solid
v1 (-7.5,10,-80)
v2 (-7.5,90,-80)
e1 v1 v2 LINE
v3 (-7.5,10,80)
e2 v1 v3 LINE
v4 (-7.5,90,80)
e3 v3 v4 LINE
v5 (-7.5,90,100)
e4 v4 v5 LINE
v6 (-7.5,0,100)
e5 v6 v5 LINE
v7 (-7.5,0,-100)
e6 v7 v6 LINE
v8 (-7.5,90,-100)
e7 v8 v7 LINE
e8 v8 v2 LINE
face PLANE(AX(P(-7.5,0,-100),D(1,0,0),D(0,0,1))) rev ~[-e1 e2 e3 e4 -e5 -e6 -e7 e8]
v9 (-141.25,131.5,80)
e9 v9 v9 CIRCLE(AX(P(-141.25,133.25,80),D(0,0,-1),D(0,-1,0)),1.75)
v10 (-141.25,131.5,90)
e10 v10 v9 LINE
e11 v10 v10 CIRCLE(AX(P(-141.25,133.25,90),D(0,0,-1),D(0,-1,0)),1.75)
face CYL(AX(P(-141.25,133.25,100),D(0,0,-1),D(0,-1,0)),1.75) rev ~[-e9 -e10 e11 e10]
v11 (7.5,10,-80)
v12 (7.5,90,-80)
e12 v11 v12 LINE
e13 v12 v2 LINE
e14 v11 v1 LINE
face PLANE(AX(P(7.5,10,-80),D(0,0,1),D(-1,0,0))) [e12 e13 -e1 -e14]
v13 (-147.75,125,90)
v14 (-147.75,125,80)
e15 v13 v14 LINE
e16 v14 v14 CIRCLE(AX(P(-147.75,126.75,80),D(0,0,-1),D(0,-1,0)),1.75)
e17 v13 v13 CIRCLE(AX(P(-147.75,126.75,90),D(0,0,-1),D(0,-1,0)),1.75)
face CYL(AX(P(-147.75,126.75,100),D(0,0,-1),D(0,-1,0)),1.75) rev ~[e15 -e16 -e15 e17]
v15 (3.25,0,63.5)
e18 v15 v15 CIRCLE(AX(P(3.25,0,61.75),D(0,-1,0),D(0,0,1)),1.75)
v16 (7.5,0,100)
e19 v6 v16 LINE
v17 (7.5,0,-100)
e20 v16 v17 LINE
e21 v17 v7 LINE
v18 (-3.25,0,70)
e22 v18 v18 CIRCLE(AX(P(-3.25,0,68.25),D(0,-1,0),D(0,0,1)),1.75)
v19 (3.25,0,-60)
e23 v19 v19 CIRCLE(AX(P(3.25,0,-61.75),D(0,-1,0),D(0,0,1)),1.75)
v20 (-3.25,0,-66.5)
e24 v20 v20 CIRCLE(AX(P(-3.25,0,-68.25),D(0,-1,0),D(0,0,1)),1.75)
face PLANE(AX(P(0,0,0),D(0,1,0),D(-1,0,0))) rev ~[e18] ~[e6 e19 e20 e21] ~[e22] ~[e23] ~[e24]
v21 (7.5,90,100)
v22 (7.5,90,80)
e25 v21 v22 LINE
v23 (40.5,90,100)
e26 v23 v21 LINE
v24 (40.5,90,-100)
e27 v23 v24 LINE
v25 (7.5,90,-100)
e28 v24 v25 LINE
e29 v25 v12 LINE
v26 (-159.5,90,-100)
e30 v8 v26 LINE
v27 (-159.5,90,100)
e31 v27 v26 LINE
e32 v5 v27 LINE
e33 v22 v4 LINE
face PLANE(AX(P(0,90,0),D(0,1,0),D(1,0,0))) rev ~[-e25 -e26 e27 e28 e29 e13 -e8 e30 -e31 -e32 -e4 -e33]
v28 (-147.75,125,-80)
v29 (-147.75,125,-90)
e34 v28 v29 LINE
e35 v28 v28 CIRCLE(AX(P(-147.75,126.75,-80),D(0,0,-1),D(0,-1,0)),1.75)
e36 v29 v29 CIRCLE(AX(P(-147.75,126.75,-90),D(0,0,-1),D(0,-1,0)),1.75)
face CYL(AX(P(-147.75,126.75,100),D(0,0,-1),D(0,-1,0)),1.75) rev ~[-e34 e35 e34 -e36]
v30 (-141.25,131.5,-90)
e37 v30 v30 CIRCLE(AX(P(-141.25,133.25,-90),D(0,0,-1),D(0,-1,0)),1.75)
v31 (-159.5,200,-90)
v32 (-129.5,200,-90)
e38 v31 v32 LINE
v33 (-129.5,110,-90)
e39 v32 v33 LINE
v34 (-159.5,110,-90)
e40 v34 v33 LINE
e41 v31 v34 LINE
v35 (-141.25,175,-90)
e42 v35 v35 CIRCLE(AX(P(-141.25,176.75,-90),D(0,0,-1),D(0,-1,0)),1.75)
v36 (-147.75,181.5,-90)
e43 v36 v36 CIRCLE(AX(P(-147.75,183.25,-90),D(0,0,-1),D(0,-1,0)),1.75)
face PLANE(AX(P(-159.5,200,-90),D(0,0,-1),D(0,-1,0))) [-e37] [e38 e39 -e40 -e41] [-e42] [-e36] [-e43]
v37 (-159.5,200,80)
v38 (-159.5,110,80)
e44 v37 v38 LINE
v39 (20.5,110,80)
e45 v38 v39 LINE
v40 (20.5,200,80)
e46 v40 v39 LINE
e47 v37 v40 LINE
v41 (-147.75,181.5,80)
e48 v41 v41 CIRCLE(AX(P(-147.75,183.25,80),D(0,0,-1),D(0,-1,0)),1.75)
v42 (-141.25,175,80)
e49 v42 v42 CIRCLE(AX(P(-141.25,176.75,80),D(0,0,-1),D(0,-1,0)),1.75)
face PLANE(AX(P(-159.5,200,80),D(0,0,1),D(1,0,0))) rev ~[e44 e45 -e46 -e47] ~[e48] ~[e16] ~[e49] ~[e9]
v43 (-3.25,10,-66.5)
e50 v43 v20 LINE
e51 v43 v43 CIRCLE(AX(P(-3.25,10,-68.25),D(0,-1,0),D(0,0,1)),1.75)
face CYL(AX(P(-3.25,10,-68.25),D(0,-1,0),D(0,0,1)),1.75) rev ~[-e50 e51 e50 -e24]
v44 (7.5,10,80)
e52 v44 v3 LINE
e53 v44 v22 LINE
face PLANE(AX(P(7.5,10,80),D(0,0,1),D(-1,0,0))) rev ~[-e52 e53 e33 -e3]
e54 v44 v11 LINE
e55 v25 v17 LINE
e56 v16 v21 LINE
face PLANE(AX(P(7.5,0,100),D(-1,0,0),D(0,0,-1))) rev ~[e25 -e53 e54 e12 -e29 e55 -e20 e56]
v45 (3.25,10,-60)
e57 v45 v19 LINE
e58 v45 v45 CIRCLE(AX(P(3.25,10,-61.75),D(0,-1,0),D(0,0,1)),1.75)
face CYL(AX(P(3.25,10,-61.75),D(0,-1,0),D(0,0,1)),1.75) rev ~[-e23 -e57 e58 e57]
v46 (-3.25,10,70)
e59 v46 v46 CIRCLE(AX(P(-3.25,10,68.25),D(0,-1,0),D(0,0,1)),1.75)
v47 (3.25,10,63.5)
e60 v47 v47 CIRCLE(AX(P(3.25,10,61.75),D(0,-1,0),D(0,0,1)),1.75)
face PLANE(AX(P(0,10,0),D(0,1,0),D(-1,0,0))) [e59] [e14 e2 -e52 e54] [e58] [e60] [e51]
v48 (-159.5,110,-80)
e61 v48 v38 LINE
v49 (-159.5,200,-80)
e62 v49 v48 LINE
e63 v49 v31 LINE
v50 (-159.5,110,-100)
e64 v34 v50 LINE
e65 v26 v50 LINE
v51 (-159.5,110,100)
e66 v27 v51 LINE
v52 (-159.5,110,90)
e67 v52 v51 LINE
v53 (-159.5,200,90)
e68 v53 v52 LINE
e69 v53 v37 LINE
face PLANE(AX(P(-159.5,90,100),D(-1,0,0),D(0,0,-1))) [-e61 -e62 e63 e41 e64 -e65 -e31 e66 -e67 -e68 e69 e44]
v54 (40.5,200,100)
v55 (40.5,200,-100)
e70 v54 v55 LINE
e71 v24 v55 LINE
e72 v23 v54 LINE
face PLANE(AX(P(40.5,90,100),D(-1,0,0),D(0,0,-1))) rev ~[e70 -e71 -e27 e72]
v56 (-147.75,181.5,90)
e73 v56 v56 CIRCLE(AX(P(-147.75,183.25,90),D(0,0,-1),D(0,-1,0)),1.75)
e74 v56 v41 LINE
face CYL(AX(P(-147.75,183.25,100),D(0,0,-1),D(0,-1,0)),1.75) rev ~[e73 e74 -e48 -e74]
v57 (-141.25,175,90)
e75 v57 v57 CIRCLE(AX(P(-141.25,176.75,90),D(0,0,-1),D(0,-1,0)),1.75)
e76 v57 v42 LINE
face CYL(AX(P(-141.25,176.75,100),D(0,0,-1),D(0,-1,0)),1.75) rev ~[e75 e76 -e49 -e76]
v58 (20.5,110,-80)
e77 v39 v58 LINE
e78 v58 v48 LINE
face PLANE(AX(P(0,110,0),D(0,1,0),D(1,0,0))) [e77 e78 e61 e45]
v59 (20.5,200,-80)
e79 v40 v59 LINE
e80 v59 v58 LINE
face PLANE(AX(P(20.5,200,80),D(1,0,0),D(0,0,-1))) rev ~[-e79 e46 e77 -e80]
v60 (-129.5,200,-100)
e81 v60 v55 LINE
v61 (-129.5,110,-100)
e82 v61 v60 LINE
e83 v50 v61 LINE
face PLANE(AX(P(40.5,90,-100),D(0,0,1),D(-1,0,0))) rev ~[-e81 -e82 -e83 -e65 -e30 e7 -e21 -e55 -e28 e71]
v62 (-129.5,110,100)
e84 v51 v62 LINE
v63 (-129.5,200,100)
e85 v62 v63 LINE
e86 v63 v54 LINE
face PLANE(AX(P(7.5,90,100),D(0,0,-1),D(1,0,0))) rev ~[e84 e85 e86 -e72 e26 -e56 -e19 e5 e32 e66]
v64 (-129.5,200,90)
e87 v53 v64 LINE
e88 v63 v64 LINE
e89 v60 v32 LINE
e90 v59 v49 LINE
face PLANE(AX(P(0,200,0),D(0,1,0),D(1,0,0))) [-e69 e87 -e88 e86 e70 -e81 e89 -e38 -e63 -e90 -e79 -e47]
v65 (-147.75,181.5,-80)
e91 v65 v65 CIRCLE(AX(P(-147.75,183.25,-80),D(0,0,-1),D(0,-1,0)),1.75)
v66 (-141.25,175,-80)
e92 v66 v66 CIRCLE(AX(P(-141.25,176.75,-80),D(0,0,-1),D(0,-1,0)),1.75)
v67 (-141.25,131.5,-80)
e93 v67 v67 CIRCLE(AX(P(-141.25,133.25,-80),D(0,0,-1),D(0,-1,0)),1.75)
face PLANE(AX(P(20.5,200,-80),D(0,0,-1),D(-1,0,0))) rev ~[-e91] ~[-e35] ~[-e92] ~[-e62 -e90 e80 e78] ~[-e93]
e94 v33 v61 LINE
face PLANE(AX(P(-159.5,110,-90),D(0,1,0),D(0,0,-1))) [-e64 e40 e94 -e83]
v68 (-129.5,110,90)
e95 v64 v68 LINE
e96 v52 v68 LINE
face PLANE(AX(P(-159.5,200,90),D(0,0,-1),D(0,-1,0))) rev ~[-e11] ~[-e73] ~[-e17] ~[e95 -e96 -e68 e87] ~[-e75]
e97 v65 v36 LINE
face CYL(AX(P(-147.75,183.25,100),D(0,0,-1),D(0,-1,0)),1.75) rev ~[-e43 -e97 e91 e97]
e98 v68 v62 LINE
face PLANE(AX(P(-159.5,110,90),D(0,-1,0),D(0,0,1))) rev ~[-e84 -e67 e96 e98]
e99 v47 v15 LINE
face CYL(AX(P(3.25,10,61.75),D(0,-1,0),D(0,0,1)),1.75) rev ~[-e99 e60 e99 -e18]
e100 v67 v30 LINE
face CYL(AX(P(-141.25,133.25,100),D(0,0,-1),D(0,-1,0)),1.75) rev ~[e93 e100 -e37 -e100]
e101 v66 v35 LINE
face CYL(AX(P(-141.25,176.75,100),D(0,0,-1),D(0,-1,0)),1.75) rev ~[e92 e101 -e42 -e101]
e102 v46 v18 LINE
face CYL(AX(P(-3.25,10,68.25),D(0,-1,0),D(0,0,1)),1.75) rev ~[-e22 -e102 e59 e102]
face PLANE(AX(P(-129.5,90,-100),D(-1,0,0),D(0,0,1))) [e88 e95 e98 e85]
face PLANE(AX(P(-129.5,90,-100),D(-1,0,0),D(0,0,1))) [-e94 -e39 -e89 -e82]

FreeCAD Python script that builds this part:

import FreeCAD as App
import Part
import Sketcher
from FreeCAD import Vector
Q = App.Units.Quantity

doc = App.newDocument("Part")
body = doc.addObject("PartDesign::Body", "Body")

sketch1 = body.newObject("Sketcher::SketchObject", "Sketch")
sketch1.AttachmentSupport = (doc.getObject("XZ_Plane"), [""])
sketch1.MapMode = "FlatFace"
sketch1.addGeometry([
    Part.LineSegment(Vector(-8, -100, 0), Vector(-8, 100, 0)),
    Part.LineSegment(Vector(-8, 100, 0), Vector(8, 100, 0)),
    Part.LineSegment(Vector(8, 100, 0), Vector(8, -100, 0)),
    Part.LineSegment(Vector(8, -100, 0), Vector(-8, -100, 0)),
], False)
sketch1.addConstraint([
    Sketcher.Constraint("Coincident", 0, 2, 1, 1),
    Sketcher.Constraint("Coincident", 1, 2, 2, 1),
    Sketcher.Constraint("Coincident", 2, 2, 3, 1),
    Sketcher.Constraint("Coincident", 3, 2, 0, 1),
    Sketcher.Constraint("Vertical", 0),
    Sketcher.Constraint("Horizontal", 1),
    Sketcher.Constraint("Vertical", 2),
    Sketcher.Constraint("Horizontal", 3),
    Sketcher.Constraint("Symmetric", 0, 2, 2, 2, -1, 1),
    Sketcher.Constraint("DistanceX", 1, 1, 1, 2, Q("15 mm")),
    Sketcher.Constraint("DistanceY", 0, 1, 0, 2, Q("200 mm")),
])
pad1 = body.newObject("PartDesign::Pad", "Pad")
pad1.Profile = sketch1
pad1.Length = 10
pad1.Reversed = True

sketch2 = body.newObject("Sketcher::SketchObject", "Sketch001")
sketch2.AttachmentSupport = (doc.getObject("XZ_Plane"), [""])
sketch2.MapMode = "FlatFace"
sketch2.AttachmentOffset = App.Placement(Vector(0, 0, -10), App.Rotation())
sketch2.addGeometry([
    Part.Circle(Vector(3.2, -61.8, 0), Vector(0, 0, 1), 1.8),
    Part.Circle(Vector(-3.2, -68.2, 0), Vector(0, 0, 1), 1.8),
    Part.Circle(Vector(-3.2, 68.2, 0), Vector(0, 0, 1), 1.8),
    Part.Circle(Vector(3.2, 61.8, 0), Vector(0, 0, 1), 1.8),
], False)
sketch2.addConstraint([
    Sketcher.Constraint("Equal", 0, 1),
    Sketcher.Constraint("Equal", 1, 2),
    Sketcher.Constraint("Equal", 2, 3),
    Sketcher.Constraint("Symmetric", 1, 3, 2, 3, -1),
    Sketcher.Constraint("Symmetric", 0, 3, 3, 3, -1),
    Sketcher.Constraint("Diameter", 0, Q("3.5 mm")),
    Sketcher.Constraint("DistanceY", 0, 3, 2, 3, Q("130 mm")),
    Sketcher.Constraint("DistanceX", 1, 3, 0, 3, Q("6.5 mm")),
    Sketcher.Constraint("DistanceY", 1, 3, 0, 3, Q("6.5 mm")),
    Sketcher.Constraint("DistanceX", -1, 1, 0, 3, Q("3.25 mm")),
])
doc.recompute()
hole = body.newObject("PartDesign::Hole", "Hole")
hole.Profile = sketch2
hole.ThreadType = "None"
hole.Diameter = 3.5
hole.DepthType = "ThroughAll"
hole.Reversed = True

sketch3 = body.newObject("Sketcher::SketchObject", "Sketch002")
sketch3.AttachmentSupport = (doc.getObject("XZ_Plane"), [""])
sketch3.MapMode = "FlatFace"
sketch3.AttachmentOffset = App.Placement(Vector(0, 0, -10), App.Rotation())
sketch3.addGeometry([
    Part.LineSegment(Vector(8, -100, 0), Vector(-8, -100, 0)),
    Part.LineSegment(Vector(-8, -100, 0), Vector(-8, -80, 0)),
    Part.LineSegment(Vector(-8, -80, 0), Vector(8, -80, 0)),
    Part.LineSegment(Vector(8, -80, 0), Vector(8, -100, 0)),
    Part.LineSegment(Vector(8, 80, 0), Vector(-8, 80, 0)),
    Part.LineSegment(Vector(-8, 80, 0), Vector(-8, 100, 0)),
    Part.LineSegment(Vector(-8, 100, 0), Vector(8, 100, 0)),
    Part.LineSegment(Vector(8, 100, 0), Vector(8, 80, 0)),
], False)
sketch3.addConstraint([
    Sketcher.Constraint("Coincident", 0, 2, 1, 1),
    Sketcher.Constraint("Coincident", 1, 2, 2, 1),
    Sketcher.Constraint("Coincident", 2, 2, 3, 1),
    Sketcher.Constraint("Coincident", 3, 2, 0, 1),
    Sketcher.Constraint("Coincident", 4, 2, 5, 1),
    Sketcher.Constraint("Coincident", 5, 2, 6, 1),
    Sketcher.Constraint("Coincident", 6, 2, 7, 1),
    Sketcher.Constraint("Coincident", 7, 2, 4, 1),
    Sketcher.Constraint("Horizontal", 0),
    Sketcher.Constraint("Vertical", 1),
    Sketcher.Constraint("Horizontal", 2),
    Sketcher.Constraint("Vertical", 3),
    Sketcher.Constraint("Horizontal", 4),
    Sketcher.Constraint("Vertical", 5),
    Sketcher.Constraint("Horizontal", 6),
    Sketcher.Constraint("Vertical", 7),
    Sketcher.Constraint("Symmetric", 2, 2, 4, 2, -1, 1),
    Sketcher.Constraint("Symmetric", 0, 2, 6, 2, -1, 1),
    Sketcher.Constraint("Vertical", 1, 2, 4, 2),
    Sketcher.Constraint("DistanceX", 0, 2, 0, 1, Q("15 mm")),
    Sketcher.Constraint("DistanceY", 1, 1, 1, 2, Q("20 mm")),
    Sketcher.Constraint("DistanceY", 0, 2, -1, 1, Q("100 mm")),
])
pad2 = body.newObject("PartDesign::Pad", "Pad001")
pad2.Profile = sketch3
pad2.Length = 80
pad2.Reversed = True

sketch4 = body.newObject("Sketcher::SketchObject", "Sketch003")
sketch4.AttachmentSupport = (doc.getObject("XZ_Plane"), [""])
sketch4.MapMode = "FlatFace"
sketch4.AttachmentOffset = App.Placement(Vector(0, 0, -90), App.Rotation())
sketch4.addGeometry([
    Part.LineSegment(Vector(40, -100, 0), Vector(-160, -100, 0)),
    Part.LineSegment(Vector(-160, -100, 0), Vector(-160, 100, 0)),
    Part.LineSegment(Vector(-160, 100, 0), Vector(40, 100, 0)),
    Part.LineSegment(Vector(40, 100, 0), Vector(40, -100, 0)),
], False)
sketch4.addConstraint([
    Sketcher.Constraint("Coincident", 0, 2, 1, 1),
    Sketcher.Constraint("Coincident", 1, 2, 2, 1),
    Sketcher.Constraint("Coincident", 2, 2, 3, 1),
    Sketcher.Constraint("Coincident", 3, 2, 0, 1),
    Sketcher.Constraint("Horizontal", 0),
    Sketcher.Constraint("Vertical", 1),
    Sketcher.Constraint("Horizontal", 2),
    Sketcher.Constraint("Vertical", 3),
    Sketcher.Constraint("Equal", 2, 1),
    Sketcher.Constraint("DistanceX", 0, 2, 0, 1, Q("200 mm")),
    Sketcher.Constraint("DistanceY", 0, 2, -1, 1, Q("100 mm")),
    Sketcher.Constraint("DistanceX", 0, 2, -1, 1, Q("159.5 mm")),
])
pad3 = body.newObject("PartDesign::Pad", "Pad002")
pad3.Profile = sketch4
pad3.Length = 110
pad3.Reversed = True

sketch5 = body.newObject("Sketcher::SketchObject", "Sketch004")
sketch5.AttachmentSupport = (doc.getObject("XZ_Plane"), [""])
sketch5.MapMode = "FlatFace"
sketch5.AttachmentOffset = App.Placement(Vector(0, 0, -200), App.Rotation())
sketch5.addGeometry([
    Part.LineSegment(Vector(20, -80, 0), Vector(-160, -80, 0)),
    Part.LineSegment(Vector(-160, -80, 0), Vector(-160, 80, 0)),
    Part.LineSegment(Vector(-160, 80, 0), Vector(20, 80, 0)),
    Part.LineSegment(Vector(20, 80, 0), Vector(20, -80, 0)),
], False)
sketch5.addConstraint([
    Sketcher.Constraint("Coincident", 0, 2, 1, 1),
    Sketcher.Constraint("Coincident", 1, 2, 2, 1),
    Sketcher.Constraint("Coincident", 2, 2, 3, 1),
    Sketcher.Constraint("Coincident", 3, 2, 0, 1),
    Sketcher.Constraint("Horizontal", 0),
    Sketcher.Constraint("Vertical", 1),
    Sketcher.Constraint("Horizontal", 2),
    Sketcher.Constraint("Vertical", 3),
    Sketcher.Constraint("DistanceX", 0, 2, 0, 1, Q("180 mm")),
    Sketcher.Constraint("DistanceY", 1, 1, 1, 2, Q("160 mm")),
    Sketcher.Constraint("DistanceY", 0, 2, -1, 1, Q("80 mm")),
    Sketcher.Constraint("DistanceX", 0, 2, -1, 1, Q("159.5 mm")),
])
pocket1 = body.newObject("PartDesign::Pocket", "Pocket")
pocket1.Profile = sketch5
pocket1.Length = 90
pocket1.Reversed = True

sketch6 = body.newObject("Sketcher::SketchObject", "Sketch005")
sketch6.AttachmentSupport = (doc.getObject("YZ_Plane"), [""])
sketch6.MapMode = "FlatFace"
sketch6.AttachmentOffset = App.Placement(Vector(0, 0, -159.5), App.Rotation())
sketch6.addGeometry([
    Part.LineSegment(Vector(200, -90, 0), Vector(200, -100, 0)),
    Part.LineSegment(Vector(200, -100, 0), Vector(110, -100, 0)),
    Part.LineSegment(Vector(110, -100, 0), Vector(110, -90, 0)),
    Part.LineSegment(Vector(110, -90, 0), Vector(200, -90, 0)),
    Part.LineSegment(Vector(200, 100, 0), Vector(200, 90, 0)),
    Part.LineSegment(Vector(200, 90, 0), Vector(110, 90, 0)),
    Part.LineSegment(Vector(110, 90, 0), Vector(110, 100, 0)),
    Part.LineSegment(Vector(110, 100, 0), Vector(200, 100, 0)),
], False)
sketch6.addConstraint([
    Sketcher.Constraint("Coincident", 0, 2, 1, 1),
    Sketcher.Constraint("Coincident", 1, 2, 2, 1),
    Sketcher.Constraint("Coincident", 2, 2, 3, 1),
    Sketcher.Constraint("Coincident", 3, 2, 0, 1),
    Sketcher.Constraint("Coincident", 4, 2, 5, 1),
    Sketcher.Constraint("Coincident", 5, 2, 6, 1),
    Sketcher.Constraint("Coincident", 6, 2, 7, 1),
    Sketcher.Constraint("Coincident", 7, 2, 4, 1),
    Sketcher.Constraint("Vertical", 0),
    Sketcher.Constraint("Horizontal", 1),
    Sketcher.Constraint("Vertical", 2),
    Sketcher.Constraint("Horizontal", 3),
    Sketcher.Constraint("Vertical", 4),
    Sketcher.Constraint("Horizontal", 5),
    Sketcher.Constraint("Vertical", 6),
    Sketcher.Constraint("Horizontal", 7),
    Sketcher.Constraint("Symmetric", 3, 2, 4, 2, -1),
    Sketcher.Constraint("Symmetric", 1, 2, 6, 2, -1),
    Sketcher.Constraint("DistanceY", 0, 2, 0, 1, Q("10 mm")),
    Sketcher.Constraint("DistanceX", 1, 2, 1, 1, Q("90 mm")),
    Sketcher.Constraint("DistanceX", -1, 1, 0, 2, Q("200 mm")),
    Sketcher.Constraint("DistanceY", 0, 2, -1, 1, Q("100 mm")),
])
pocket2 = body.newObject("PartDesign::Pocket", "Pocket001")
pocket2.Profile = sketch6
pocket2.Length = 30
pocket2.Reversed = True

sketch7 = body.newObject("Sketcher::SketchObject", "Sketch006")
sketch7.AttachmentSupport = (doc.getObject("XY_Plane"), [""])
sketch7.MapMode = "FlatFace"
sketch7.AttachmentOffset = App.Placement(Vector(0, 0, 100), App.Rotation())
sketch7.addGeometry([
    Part.Circle(Vector(-147.8, 183.2, 0), Vector(0, 0, 1), 1.8),
    Part.Circle(Vector(-141.2, 176.8, 0), Vector(0, 0, 1), 1.8),
    Part.Circle(Vector(-147.8, 126.8, 0), Vector(0, 0, 1), 1.8),
    Part.Circle(Vector(-141.2, 133.2, 0), Vector(0, 0, 1), 1.8),
], False)
sketch7.addConstraint([
    Sketcher.Constraint("Equal", 0, 1),
    Sketcher.Constraint("Equal", 1, 2),
    Sketcher.Constraint("Equal", 2, 3),
    Sketcher.Constraint("Vertical", 0, 3, 2, 3),
    Sketcher.Constraint("Vertical", 1, 3, 3, 3),
    Sketcher.Constraint("Diameter", 0, Q("3.5 mm")),
    Sketcher.Constraint("DistanceY", 2, 3, 1, 3, Q("50 mm")),
    Sketcher.Constraint("DistanceY", 3, 3, 0, 3, Q("50 mm")),
    Sketcher.Constraint("DistanceX", 0, 3, 1, 3, Q("6.5 mm")),
    Sketcher.Constraint("DistanceY", 1, 3, 0, 3, Q("6.5 mm")),
    Sketcher.Constraint("DistanceX", 0, 3, -1, 1, Q("147.75 mm")),
    Sketcher.Constraint("DistanceY", -1, 1, 0, 3, Q("183.25 mm")),
])
doc.recompute()
hole2 = body.newObject("PartDesign::Hole", "Hole001")
hole2.Profile = sketch7
hole2.ThreadType = "None"
hole2.Diameter = 3.5
hole2.DepthType = "ThroughAll"

doc.recompute()
